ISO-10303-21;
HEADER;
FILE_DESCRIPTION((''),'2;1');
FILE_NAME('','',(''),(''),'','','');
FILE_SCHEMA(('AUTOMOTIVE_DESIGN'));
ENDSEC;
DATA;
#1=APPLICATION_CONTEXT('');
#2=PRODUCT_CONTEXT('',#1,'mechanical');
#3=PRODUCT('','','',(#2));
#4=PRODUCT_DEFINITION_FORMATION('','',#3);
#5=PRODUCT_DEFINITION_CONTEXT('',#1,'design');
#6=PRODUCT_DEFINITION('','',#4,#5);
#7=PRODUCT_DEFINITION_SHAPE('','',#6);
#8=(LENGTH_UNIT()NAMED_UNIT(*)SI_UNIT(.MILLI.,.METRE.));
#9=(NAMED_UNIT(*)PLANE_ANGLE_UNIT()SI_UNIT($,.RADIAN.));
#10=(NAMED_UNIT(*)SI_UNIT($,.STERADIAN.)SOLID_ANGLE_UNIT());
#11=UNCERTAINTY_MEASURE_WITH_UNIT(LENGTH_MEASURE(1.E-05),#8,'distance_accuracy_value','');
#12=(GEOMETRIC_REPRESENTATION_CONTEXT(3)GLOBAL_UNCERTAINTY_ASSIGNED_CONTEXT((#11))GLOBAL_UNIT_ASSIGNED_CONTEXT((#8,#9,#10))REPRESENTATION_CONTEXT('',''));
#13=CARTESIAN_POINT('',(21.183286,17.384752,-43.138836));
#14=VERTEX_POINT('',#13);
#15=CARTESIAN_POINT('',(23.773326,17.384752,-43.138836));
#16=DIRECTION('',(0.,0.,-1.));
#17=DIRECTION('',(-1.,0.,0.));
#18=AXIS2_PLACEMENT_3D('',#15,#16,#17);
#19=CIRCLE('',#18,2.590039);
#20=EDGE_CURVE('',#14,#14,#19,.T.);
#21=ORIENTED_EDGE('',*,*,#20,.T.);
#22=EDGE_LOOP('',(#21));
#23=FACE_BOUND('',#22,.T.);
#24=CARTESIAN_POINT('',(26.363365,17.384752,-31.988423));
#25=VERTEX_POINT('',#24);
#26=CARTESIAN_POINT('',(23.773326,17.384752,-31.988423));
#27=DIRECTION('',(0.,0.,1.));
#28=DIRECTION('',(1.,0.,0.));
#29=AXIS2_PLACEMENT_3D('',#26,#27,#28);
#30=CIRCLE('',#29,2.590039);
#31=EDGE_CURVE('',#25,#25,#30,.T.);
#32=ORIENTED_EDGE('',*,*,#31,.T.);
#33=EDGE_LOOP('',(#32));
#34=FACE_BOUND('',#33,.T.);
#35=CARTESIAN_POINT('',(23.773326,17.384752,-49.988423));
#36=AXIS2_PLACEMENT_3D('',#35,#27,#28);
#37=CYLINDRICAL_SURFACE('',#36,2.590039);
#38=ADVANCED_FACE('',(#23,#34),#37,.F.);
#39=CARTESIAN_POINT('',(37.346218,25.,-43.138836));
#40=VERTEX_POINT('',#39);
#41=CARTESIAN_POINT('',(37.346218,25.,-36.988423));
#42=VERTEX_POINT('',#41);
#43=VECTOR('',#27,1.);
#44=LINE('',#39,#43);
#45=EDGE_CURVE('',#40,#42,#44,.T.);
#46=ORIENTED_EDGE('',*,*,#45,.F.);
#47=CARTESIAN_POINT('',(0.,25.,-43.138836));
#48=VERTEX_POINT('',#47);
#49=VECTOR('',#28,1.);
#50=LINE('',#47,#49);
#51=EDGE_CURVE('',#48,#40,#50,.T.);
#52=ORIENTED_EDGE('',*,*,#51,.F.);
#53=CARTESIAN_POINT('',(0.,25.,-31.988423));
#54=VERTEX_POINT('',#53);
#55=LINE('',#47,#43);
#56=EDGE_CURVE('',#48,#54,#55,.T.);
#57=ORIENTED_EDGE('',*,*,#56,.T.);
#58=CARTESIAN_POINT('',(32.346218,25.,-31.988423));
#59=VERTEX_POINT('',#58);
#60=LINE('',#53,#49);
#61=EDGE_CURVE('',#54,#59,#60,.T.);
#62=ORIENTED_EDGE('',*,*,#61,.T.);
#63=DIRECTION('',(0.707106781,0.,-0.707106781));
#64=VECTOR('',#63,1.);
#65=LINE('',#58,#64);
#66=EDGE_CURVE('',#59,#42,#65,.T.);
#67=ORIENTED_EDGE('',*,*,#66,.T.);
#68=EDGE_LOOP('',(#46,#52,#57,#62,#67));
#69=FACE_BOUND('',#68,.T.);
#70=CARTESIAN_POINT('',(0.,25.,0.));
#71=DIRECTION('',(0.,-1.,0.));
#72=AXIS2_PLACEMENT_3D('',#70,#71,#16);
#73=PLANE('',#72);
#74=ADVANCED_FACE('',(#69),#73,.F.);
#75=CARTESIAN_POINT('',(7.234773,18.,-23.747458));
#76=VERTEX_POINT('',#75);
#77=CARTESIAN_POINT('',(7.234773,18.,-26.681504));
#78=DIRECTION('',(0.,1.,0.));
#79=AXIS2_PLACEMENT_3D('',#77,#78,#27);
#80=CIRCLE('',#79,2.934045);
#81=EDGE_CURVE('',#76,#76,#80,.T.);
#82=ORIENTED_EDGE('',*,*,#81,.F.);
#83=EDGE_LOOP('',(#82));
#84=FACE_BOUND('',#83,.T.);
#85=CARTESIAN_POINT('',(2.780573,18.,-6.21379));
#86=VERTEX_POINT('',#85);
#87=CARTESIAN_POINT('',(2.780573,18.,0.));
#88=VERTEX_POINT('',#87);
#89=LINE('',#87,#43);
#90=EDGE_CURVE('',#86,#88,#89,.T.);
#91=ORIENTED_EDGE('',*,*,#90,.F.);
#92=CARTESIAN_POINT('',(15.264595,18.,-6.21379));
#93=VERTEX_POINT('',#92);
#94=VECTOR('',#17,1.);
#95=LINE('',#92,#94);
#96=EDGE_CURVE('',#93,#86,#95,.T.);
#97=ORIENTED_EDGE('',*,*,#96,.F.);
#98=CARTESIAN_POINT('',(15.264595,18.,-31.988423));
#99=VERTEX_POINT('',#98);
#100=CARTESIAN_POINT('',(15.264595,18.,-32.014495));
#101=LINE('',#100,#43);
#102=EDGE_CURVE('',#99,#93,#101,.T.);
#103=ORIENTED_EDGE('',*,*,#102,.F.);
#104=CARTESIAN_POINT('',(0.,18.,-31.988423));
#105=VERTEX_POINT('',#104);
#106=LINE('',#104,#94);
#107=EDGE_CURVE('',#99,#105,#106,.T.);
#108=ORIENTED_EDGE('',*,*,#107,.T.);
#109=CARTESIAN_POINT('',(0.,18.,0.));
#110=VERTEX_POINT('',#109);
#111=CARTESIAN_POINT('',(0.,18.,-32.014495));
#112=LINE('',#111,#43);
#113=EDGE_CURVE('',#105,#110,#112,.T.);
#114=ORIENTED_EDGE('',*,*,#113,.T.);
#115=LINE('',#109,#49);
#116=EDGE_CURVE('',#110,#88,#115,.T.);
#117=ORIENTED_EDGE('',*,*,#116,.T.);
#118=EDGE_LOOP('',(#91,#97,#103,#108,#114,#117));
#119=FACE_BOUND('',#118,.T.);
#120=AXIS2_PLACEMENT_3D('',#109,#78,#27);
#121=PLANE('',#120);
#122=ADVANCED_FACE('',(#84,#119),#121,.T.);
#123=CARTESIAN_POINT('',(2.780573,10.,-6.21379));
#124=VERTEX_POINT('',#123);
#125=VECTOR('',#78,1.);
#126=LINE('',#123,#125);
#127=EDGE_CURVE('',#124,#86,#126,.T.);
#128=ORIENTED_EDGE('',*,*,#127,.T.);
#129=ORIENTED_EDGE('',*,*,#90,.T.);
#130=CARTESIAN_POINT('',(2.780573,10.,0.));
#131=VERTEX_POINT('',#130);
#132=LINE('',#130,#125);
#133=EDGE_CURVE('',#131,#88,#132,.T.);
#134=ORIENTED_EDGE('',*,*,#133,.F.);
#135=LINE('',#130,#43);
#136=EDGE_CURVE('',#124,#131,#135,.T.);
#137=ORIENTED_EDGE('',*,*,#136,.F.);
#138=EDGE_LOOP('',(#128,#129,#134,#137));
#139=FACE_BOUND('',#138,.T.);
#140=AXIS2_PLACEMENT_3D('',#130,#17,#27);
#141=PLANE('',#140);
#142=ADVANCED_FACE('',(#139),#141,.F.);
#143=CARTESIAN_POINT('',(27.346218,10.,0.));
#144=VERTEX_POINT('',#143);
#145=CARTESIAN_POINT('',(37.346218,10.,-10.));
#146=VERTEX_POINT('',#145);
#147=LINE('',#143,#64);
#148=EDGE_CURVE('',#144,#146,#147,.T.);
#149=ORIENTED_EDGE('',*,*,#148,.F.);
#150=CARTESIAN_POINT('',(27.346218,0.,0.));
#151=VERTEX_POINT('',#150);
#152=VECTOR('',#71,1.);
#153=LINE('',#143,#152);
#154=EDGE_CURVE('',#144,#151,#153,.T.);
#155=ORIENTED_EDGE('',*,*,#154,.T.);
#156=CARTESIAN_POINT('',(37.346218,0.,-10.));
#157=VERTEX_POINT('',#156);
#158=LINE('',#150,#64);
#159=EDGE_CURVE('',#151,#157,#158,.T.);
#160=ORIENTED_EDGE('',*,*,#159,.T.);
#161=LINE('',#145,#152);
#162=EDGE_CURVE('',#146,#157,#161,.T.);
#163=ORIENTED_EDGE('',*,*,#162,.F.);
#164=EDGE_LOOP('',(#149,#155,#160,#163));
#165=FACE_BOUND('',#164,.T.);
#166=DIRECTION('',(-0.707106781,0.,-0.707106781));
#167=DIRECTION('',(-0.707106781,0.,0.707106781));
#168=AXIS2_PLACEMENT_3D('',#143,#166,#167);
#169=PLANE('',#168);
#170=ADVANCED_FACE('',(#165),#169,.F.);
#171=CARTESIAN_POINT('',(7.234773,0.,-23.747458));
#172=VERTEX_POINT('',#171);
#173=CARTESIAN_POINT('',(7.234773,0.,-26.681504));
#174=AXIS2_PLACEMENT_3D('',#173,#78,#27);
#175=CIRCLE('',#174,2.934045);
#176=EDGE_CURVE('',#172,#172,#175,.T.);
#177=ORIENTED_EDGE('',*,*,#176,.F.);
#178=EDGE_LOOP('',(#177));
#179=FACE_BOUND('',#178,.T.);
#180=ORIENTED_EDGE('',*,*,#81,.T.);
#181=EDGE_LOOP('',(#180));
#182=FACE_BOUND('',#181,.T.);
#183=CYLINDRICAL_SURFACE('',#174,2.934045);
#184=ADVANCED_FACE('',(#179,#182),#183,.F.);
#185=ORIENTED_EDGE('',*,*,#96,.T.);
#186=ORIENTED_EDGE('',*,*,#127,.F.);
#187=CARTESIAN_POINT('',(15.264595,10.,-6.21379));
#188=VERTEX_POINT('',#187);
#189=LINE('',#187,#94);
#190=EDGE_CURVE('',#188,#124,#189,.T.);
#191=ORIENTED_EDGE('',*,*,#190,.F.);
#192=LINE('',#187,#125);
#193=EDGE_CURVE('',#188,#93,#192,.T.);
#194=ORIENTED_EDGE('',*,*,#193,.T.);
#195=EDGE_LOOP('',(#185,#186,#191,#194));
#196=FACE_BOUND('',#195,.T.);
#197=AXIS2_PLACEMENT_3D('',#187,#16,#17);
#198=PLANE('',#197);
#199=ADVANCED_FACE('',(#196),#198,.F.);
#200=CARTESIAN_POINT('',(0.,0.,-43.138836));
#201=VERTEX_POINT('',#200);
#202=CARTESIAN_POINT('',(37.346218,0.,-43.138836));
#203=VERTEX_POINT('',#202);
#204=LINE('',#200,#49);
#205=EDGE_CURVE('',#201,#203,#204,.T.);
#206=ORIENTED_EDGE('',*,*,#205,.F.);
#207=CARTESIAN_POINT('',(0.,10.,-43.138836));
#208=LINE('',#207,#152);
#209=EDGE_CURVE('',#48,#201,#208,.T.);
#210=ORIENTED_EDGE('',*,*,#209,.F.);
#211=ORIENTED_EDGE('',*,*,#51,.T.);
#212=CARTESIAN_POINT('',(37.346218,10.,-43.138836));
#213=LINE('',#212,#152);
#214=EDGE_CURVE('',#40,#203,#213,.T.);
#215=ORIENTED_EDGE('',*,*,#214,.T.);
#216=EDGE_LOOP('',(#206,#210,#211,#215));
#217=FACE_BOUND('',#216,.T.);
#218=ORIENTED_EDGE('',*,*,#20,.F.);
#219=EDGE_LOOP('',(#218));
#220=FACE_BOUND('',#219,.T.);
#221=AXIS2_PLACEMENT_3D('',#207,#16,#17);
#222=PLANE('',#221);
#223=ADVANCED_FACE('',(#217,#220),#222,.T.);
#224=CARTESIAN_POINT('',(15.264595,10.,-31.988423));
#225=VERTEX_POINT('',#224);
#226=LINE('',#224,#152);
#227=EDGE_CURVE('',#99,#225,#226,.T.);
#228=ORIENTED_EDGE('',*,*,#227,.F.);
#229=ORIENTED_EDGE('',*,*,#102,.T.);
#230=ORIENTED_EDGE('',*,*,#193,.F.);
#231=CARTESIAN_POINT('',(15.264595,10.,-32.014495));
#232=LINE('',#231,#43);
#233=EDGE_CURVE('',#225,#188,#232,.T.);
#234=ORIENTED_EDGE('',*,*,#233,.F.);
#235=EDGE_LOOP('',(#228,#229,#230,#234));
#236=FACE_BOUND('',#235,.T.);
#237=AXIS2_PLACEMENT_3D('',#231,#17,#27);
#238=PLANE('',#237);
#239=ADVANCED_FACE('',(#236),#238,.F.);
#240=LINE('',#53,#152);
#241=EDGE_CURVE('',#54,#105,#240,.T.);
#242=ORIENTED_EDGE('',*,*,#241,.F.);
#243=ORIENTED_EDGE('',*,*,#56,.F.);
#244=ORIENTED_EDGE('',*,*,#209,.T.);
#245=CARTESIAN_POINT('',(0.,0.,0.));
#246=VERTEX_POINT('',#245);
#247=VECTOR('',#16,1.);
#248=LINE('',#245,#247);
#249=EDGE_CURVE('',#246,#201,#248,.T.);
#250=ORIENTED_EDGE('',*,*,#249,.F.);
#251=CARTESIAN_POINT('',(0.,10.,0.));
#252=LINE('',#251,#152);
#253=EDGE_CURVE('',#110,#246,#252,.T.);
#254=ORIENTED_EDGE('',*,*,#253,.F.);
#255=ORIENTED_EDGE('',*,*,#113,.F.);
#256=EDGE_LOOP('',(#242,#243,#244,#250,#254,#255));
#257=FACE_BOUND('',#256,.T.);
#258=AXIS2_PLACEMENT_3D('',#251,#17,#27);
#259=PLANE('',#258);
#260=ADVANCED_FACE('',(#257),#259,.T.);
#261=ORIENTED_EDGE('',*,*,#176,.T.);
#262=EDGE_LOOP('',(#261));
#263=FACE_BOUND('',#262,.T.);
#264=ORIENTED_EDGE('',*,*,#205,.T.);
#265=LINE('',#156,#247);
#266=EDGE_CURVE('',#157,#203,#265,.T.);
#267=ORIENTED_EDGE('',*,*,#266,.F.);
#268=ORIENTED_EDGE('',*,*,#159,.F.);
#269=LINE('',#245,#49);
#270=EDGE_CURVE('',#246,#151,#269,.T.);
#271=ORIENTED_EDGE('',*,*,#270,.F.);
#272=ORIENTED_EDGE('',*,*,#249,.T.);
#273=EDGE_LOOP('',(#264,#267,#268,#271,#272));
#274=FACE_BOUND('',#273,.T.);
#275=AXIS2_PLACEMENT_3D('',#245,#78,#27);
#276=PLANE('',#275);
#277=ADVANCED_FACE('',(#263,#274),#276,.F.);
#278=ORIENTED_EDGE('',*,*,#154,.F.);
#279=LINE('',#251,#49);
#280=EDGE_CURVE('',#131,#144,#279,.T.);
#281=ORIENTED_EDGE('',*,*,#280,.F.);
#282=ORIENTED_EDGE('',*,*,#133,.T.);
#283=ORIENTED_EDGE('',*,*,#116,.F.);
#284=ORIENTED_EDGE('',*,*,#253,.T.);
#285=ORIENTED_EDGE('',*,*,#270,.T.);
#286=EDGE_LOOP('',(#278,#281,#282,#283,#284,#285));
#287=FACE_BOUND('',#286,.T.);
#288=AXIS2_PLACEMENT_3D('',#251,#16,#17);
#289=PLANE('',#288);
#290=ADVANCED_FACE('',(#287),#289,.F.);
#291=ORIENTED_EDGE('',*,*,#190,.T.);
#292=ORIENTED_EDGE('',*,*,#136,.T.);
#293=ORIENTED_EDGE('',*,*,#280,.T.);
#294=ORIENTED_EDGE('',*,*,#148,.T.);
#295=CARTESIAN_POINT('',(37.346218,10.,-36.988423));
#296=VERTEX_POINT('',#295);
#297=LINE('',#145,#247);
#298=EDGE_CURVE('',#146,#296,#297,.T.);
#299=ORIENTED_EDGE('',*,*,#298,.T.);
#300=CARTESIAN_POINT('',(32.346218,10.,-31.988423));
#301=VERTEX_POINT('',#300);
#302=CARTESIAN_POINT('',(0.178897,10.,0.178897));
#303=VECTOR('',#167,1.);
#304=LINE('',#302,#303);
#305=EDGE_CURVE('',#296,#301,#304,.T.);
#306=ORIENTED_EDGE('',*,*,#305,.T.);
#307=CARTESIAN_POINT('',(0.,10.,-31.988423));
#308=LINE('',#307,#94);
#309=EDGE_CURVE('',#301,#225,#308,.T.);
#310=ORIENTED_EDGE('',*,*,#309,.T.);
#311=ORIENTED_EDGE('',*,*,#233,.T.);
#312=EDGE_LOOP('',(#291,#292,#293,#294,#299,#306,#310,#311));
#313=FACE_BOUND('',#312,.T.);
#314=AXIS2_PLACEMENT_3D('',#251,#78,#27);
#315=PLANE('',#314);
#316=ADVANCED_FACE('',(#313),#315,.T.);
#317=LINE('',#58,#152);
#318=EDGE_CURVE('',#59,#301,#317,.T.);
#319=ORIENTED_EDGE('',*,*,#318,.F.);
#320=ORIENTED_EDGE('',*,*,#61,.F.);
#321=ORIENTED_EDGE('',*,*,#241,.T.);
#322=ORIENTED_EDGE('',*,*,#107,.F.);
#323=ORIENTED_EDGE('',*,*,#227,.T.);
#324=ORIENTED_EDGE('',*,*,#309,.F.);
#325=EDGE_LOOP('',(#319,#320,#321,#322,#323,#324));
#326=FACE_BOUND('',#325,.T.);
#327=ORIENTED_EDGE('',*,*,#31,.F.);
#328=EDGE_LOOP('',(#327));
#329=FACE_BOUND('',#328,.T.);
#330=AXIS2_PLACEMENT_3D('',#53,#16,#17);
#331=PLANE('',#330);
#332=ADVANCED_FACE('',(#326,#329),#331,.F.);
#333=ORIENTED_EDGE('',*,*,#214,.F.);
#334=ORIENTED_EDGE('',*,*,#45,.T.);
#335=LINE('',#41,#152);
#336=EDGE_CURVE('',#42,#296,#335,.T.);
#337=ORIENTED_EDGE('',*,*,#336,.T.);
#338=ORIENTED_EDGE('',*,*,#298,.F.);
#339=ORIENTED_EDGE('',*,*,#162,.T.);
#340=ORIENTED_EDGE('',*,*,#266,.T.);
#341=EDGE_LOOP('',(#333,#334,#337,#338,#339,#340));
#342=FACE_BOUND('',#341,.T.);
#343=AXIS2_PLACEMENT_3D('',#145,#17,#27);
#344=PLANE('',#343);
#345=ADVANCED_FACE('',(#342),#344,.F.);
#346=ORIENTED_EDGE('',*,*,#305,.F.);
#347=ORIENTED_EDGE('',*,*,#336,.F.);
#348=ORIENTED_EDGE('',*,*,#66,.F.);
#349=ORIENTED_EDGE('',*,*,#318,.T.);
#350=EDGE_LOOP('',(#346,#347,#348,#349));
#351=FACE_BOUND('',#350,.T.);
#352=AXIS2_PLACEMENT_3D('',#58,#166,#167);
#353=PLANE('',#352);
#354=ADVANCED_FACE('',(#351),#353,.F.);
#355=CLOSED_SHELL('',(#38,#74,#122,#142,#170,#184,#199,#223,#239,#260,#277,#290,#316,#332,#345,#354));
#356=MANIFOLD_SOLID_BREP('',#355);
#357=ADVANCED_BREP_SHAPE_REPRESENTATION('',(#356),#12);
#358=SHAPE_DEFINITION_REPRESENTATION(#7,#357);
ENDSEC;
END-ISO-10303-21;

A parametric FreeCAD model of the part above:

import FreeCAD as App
import Part
import Sketcher

V = App.Vector
Q = App.Units.Quantity

doc = App.newDocument("Part")
body = doc.addObject("PartDesign::Body", "Body")

sketch1 = doc.addObject("Sketcher::SketchObject", "Sketch")
body.addObject(sketch1)
sketch1.AttachmentSupport = (doc.XZ_Plane, [""])
sketch1.MapMode = "FlatFace"
sketch1.addGeometry(Part.LineSegment(V(27.346218, 0, 0), V(37.346218, -10, 0)), False)
sketch1.addGeometry(Part.LineSegment(V(37.346218, -10, 0), V(37.346218, -43.138836, 0)), False)
sketch1.addGeometry(Part.LineSegment(V(37.346218, -43.138836, 0), V(0, -43.138836, 0)), False)
sketch1.addGeometry(Part.LineSegment(V(0, -43.138836, 0), V(0, 0, 0)), False)
sketch1.addGeometry(Part.LineSegment(V(0, 0, 0), V(27.346218, 0, 0)), False)
sketch1.addConstraint(Sketcher.Constraint("Coincident", 0, 2, 1, 1))
sketch1.addConstraint(Sketcher.Constraint("Coincident", 1, 2, 2, 1))
sketch1.addConstraint(Sketcher.Constraint("Coincident", 2, 2, 3, 1))
sketch1.addConstraint(Sketcher.Constraint("Coincident", 3, 2, 4, 1))
sketch1.addConstraint(Sketcher.Constraint("Coincident", 4, 2, 0, 1))
sketch1.addConstraint(Sketcher.Constraint("Vertical", 1))
sketch1.addConstraint(Sketcher.Constraint("Horizontal", 2))
sketch1.addConstraint(Sketcher.Constraint("Vertical", 3))
sketch1.addConstraint(Sketcher.Constraint("Horizontal", 4))
sketch1.addConstraint(Sketcher.Constraint("Coincident", 3, 2, -1, 1))
sketch1.addConstraint(Sketcher.Constraint("Angle", 0, Q("-45 deg")))
sketch1.addConstraint(Sketcher.Constraint("DistanceY", 0, 2, -1, 1, Q("10 mm")))
sketch1.addConstraint(Sketcher.Constraint("DistanceX", 2, 2, 2, 1, Q("37.346218 mm")))
sketch1.addConstraint(Sketcher.Constraint("DistanceY", 1, 2, 1, 1, Q("33.138836 mm")))
pad1 = doc.addObject("PartDesign::Pad", "Pad")
body.addObject(pad1)
pad1.Profile = sketch1
pad1.Length = 10
pad1.Reversed = True

sketch2 = doc.addObject("Sketcher::SketchObject", "Sketch001")
body.addObject(sketch2)
sketch2.AttachmentSupport = (doc.XZ_Plane, [""])
sketch2.MapMode = "FlatFace"
sketch2.AttachmentOffset = App.Placement(V(0, 0, -10), App.Rotation())
sketch2.addGeometry(Part.LineSegment(V(15.264595, -32.014495, 0), V(0, -32.014495, 0)), False)
sketch2.addGeometry(Part.LineSegment(V(0, -32.014495, 0), V(0, 0, 0)), False)
sketch2.addGeometry(Part.LineSegment(V(0, 0, 0), V(15.264595, 0, 0)), False)
sketch2.addGeometry(Part.LineSegment(V(15.264595, 0, 0), V(15.264595, -32.014495, 0)), False)
sketch2.addConstraint(Sketcher.Constraint("Coincident", 0, 2, 1, 1))
sketch2.addConstraint(Sketcher.Constraint("Coincident", 1, 2, 2, 1))
sketch2.addConstraint(Sketcher.Constraint("Coincident", 2, 2, 3, 1))
sketch2.addConstraint(Sketcher.Constraint("Coincident", 3, 2, 0, 1))
sketch2.addConstraint(Sketcher.Constraint("Horizontal", 0))
sketch2.addConstraint(Sketcher.Constraint("Vertical", 1))
sketch2.addConstraint(Sketcher.Constraint("Horizontal", 2))
sketch2.addConstraint(Sketcher.Constraint("Vertical", 3))
sketch2.addConstraint(Sketcher.Constraint("Coincident", 1, 2, -1, 1))
sketch2.addConstraint(Sketcher.Constraint("DistanceX", 0, 2, 0, 1, Q("15.264595 mm")))
sketch2.addConstraint(Sketcher.Constraint("DistanceY", 1, 1, 1, 2, Q("32.014495 mm")))
pad2 = doc.addObject("PartDesign::Pad", "Pad001")
body.addObject(pad2)
pad2.Profile = sketch2
pad2.Length = 8
pad2.Reversed = True

sketch3 = doc.addObject("Sketcher::SketchObject", "Sketch002")
body.addObject(sketch3)
sketch3.AttachmentSupport = (doc.XZ_Plane, [""])
sketch3.MapMode = "FlatFace"
sketch3.addGeometry(Part.LineSegment(V(37.346218, -43.138836, 0), V(0, -43.138836, 0)), False)
sketch3.addGeometry(Part.LineSegment(V(0, -43.138836, 0), V(0, -31.988423, 0)), False)
sketch3.addGeometry(Part.LineSegment(V(0, -31.988423, 0), V(32.346218, -31.988423, 0)), False)
sketch3.addGeometry(Part.LineSegment(V(32.346218, -31.988423, 0), V(37.346218, -36.988423, 0)), False)
sketch3.addGeometry(Part.LineSegment(V(37.346218, -36.988423, 0), V(37.346218, -43.138836, 0)), False)
sketch3.addConstraint(Sketcher.Constraint("Coincident", 0, 2, 1, 1))
sketch3.addConstraint(Sketcher.Constraint("Coincident", 1, 2, 2, 1))
sketch3.addConstraint(Sketcher.Constraint("Coincident", 2, 2, 3, 1))
sketch3.addConstraint(Sketcher.Constraint("Coincident", 3, 2, 4, 1))
sketch3.addConstraint(Sketcher.Constraint("Coincident", 4, 2, 0, 1))
sketch3.addConstraint(Sketcher.Constraint("Horizontal", 0))
sketch3.addConstraint(Sketcher.Constraint("Vertical", 1))
sketch3.addConstraint(Sketcher.Constraint("Horizontal", 2))
sketch3.addConstraint(Sketcher.Constraint("Vertical", 4))
sketch3.addConstraint(Sketcher.Constraint("PointOnObject", 0, 2, -2))
sketch3.addConstraint(Sketcher.Constraint("Angle", 3, Q("-45 deg")))
sketch3.addConstraint(Sketcher.Constraint("DistanceX", 2, 2, 3, 2, Q("5 mm")))
sketch3.addConstraint(Sketcher.Constraint("DistanceX", 0, 2, 0, 1, Q("37.346218 mm")))
sketch3.addConstraint(Sketcher.Constraint("DistanceY", 1, 1, 1, 2, Q("11.150413 mm")))
sketch3.addConstraint(Sketcher.Constraint("DistanceY", 0, 2, -1, 1, Q("43.138836 mm")))
pad3 = doc.addObject("PartDesign::Pad", "Pad002")
body.addObject(pad3)
pad3.Profile = sketch3
pad3.Length = 25
pad3.Reversed = True

sketch4 = doc.addObject("Sketcher::SketchObject", "Sketch003")
body.addObject(sketch4)
sketch4.AttachmentSupport = (doc.XZ_Plane, [""])
sketch4.MapMode = "FlatFace"
sketch4.AttachmentOffset = App.Placement(V(0, 0, -18), App.Rotation())
sketch4.addGeometry(Part.LineSegment(V(2.780573, -6.21379, 0), V(2.780573, 0, 0)), False)
sketch4.addGeometry(Part.LineSegment(V(2.780573, 0, 0), V(15.264595, 0, 0)), False)
sketch4.addGeometry(Part.LineSegment(V(15.264595, 0, 0), V(15.264595, -6.21379, 0)), False)
sketch4.addGeometry(Part.LineSegment(V(15.264595, -6.21379, 0), V(2.780573, -6.21379, 0)), False)
sketch4.addConstraint(Sketcher.Constraint("Coincident", 0, 2, 1, 1))
sketch4.addConstraint(Sketcher.Constraint("Coincident", 1, 2, 2, 1))
sketch4.addConstraint(Sketcher.Constraint("Coincident", 2, 2, 3, 1))
sketch4.addConstraint(Sketcher.Constraint("Coincident", 3, 2, 0, 1))
sketch4.addConstraint(Sketcher.Constraint("Vertical", 0))
sketch4.addConstraint(Sketcher.Constraint("Horizontal", 1))
sketch4.addConstraint(Sketcher.Constraint("Vertical", 2))
sketch4.addConstraint(Sketcher.Constraint("Horizontal", 3))
sketch4.addConstraint(Sketcher.Constraint("PointOnObject", 0, 2, -1))
sketch4.addConstraint(Sketcher.Constraint("DistanceY", 0, 1, 0, 2, Q("6.21379 mm")))
sketch4.addConstraint(Sketcher.Constraint("DistanceX", 1, 1, 1, 2, Q("12.484022 mm")))
sketch4.addConstraint(Sketcher.Constraint("DistanceX", -1, 1, 0, 2, Q("2.780573 mm")))
pocket1 = doc.addObject("PartDesign::Pocket", "Pocket")
body.addObject(pocket1)
pocket1.Profile = sketch4
pocket1.Length = 8
pocket1.Reversed = True

sketch5 = doc.addObject("Sketcher::SketchObject", "Sketch004")
body.addObject(sketch5)
sketch5.AttachmentSupport = (doc.XZ_Plane, [""])
sketch5.MapMode = "FlatFace"
sketch5.AttachmentOffset = App.Placement(V(0, 0, -18), App.Rotation())
sketch5.addGeometry(Part.Circle(V(7.234773, -26.681504, 0), V(0, 0, 1), 2.934045), False)
sketch5.addConstraint(Sketcher.Constraint("Diameter", 0, Q("5.868091 mm")))
sketch5.addConstraint(Sketcher.Constraint("DistanceX", -1, 1, 0, 3, Q("7.234773 mm")))
sketch5.addConstraint(Sketcher.Constraint("DistanceY", 0, 3, -1, 1, Q("26.681504 mm")))
pocket2 = doc.addObject("PartDesign::Pocket", "Pocket001")
body.addObject(pocket2)
pocket2.Profile = sketch5
pocket2.Length = 18
pocket2.Reversed = True

sketch6 = doc.addObject("Sketcher::SketchObject", "Sketch005")
body.addObject(sketch6)
sketch6.AttachmentSupport = (doc.XY_Plane, [""])
sketch6.MapMode = "FlatFace"
sketch6.AttachmentOffset = App.Placement(V(0, 0, -31.988423), App.Rotation())
sketch6.addGeometry(Part.Circle(V(23.773326, 17.384752, 0), V(0, 0, 1), 2.590039), False)
sketch6.addConstraint(Sketcher.Constraint("Diameter", 0, Q("5.180079 mm")))
sketch6.addConstraint(Sketcher.Constraint("DistanceY", -1, 1, 0, 3, Q("17.384752 mm")))
sketch6.addConstraint(Sketcher.Constraint("DistanceX", -1, 1, 0, 3, Q("23.773326 mm")))
pocket3 = doc.addObject("PartDesign::Pocket", "Pocket002")
body.addObject(pocket3)
pocket3.Profile = sketch6
pocket3.Length = 18

doc.recompute()
